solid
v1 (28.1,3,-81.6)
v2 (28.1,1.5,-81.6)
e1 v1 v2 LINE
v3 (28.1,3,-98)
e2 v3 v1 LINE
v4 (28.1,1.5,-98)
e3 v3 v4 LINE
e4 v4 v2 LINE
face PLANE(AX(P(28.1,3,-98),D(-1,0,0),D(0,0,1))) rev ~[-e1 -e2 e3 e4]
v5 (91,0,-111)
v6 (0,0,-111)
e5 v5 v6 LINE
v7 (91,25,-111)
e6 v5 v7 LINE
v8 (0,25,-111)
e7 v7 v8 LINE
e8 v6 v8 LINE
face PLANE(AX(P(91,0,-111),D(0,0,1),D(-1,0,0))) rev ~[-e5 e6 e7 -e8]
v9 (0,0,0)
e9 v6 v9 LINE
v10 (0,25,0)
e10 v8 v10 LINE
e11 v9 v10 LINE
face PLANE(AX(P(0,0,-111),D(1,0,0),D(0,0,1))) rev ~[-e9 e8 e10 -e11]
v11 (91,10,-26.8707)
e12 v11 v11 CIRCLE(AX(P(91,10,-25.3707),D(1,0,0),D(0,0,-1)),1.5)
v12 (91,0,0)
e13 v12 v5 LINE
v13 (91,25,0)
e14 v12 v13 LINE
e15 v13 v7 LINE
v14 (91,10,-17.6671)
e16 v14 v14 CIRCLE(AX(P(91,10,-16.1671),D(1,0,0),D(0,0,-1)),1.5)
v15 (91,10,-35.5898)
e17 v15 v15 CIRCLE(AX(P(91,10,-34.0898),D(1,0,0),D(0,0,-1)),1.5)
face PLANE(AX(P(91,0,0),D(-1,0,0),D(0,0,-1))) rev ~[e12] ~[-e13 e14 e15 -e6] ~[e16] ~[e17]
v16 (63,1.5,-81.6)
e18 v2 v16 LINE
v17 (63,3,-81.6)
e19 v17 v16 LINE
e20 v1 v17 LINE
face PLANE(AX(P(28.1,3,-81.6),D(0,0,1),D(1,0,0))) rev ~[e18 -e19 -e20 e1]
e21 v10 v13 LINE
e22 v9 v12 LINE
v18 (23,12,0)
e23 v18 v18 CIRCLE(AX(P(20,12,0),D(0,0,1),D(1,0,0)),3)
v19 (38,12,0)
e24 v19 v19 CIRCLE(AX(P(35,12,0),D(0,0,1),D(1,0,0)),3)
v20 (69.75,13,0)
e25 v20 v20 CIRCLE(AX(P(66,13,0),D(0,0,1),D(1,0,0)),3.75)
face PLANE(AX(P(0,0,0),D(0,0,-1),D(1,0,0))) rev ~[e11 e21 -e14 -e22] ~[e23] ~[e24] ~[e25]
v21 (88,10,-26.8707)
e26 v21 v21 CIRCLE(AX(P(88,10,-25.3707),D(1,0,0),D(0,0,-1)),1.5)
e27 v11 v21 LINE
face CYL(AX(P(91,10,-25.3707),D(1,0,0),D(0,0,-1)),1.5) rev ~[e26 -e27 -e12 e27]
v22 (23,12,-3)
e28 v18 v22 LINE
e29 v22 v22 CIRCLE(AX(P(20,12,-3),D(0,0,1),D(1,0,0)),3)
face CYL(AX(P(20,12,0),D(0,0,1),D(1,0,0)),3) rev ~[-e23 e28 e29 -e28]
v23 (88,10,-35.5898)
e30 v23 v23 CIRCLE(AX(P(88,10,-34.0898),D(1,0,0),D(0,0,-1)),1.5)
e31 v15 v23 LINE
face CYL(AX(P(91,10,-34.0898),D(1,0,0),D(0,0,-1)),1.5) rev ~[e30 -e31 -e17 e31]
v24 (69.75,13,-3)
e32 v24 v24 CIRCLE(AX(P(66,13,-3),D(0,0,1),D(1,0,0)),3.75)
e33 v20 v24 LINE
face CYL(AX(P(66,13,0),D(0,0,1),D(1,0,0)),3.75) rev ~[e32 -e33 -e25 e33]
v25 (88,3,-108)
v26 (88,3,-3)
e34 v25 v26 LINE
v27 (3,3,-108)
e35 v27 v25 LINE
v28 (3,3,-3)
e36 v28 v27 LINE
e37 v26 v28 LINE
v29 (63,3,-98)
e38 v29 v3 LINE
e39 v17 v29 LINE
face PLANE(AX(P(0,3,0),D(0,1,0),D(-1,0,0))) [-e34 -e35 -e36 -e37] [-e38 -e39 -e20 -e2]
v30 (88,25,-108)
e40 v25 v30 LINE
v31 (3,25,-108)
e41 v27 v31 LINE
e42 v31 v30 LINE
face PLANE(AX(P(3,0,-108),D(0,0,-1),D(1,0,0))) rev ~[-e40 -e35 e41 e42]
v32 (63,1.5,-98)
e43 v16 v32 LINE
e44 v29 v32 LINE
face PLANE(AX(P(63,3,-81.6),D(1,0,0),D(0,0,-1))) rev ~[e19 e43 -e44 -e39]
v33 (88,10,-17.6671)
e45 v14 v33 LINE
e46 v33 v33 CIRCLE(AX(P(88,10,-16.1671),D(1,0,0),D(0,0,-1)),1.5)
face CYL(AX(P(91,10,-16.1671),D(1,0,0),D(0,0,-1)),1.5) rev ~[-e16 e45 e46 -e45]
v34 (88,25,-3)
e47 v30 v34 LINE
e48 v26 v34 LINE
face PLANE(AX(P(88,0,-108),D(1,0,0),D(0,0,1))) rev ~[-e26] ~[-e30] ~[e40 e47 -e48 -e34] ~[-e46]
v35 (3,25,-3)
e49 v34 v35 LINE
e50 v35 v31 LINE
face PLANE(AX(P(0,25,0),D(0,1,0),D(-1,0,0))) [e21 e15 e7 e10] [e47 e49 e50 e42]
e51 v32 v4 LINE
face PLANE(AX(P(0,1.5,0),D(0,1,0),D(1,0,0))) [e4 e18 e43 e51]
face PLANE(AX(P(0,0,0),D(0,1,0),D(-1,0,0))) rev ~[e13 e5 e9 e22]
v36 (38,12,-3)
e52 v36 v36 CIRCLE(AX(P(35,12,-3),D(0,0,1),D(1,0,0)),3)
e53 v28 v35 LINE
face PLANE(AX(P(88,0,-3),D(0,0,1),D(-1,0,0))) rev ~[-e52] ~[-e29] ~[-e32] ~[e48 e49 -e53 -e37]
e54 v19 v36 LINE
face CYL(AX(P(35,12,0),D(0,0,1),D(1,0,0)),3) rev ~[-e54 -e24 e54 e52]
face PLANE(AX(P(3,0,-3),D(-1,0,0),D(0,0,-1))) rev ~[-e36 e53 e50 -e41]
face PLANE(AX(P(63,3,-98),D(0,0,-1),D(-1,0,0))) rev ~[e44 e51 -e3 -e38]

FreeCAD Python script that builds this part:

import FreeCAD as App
import Part
import Sketcher
from FreeCAD import Vector
Q = App.Units.Quantity


def add_polygon(sketch, points):
    """Adds a closed chain of lines whose ends are joined by coincident constraints."""
    first, n = sketch.GeometryCount, len(points)
    for a, b in zip(points, points[1:] + points[:1]):
        sketch.addGeometry(Part.LineSegment(App.Vector(*a, 0), App.Vector(*b, 0)), False)
    for i in range(n):
        sketch.addConstraint(Sketcher.Constraint("Coincident", first + i, 2, first + (i + 1) % n, 1))

doc = App.newDocument("Part")
body = doc.addObject("PartDesign::Body", "Body")

# Sketch on XZ plane
sketch1 = body.newObject("Sketcher::SketchObject", "Sketch")
sketch1.AttachmentSupport = (doc.getObject("XZ_Plane"), [""])
sketch1.MapMode = "FlatFace"
add_polygon(sketch1, [(88, -108), (3, -108), (3, -3), (88, -3)])  # lines 0-3
sketch1.addConstraint([
    Sketcher.Constraint("Horizontal", 0),
    Sketcher.Constraint("Vertical", 1),
    Sketcher.Constraint("Horizontal", 2),
    Sketcher.Constraint("Vertical", 3),
    Sketcher.Constraint("DistanceX", 0, 2, 0, 1, Q("85 mm")),
    Sketcher.Constraint("DistanceY", 1, 1, 1, 2, Q("105 mm")),
    Sketcher.Constraint("DistanceX", -1, 1, 0, 2, Q("3 mm")),
    Sketcher.Constraint("DistanceY", 1, 2, -1, 1, Q("3 mm")),
])
pad1 = body.newObject("PartDesign::Pad", "Pad")
pad1.Profile = sketch1
pad1.Length = 3
pad1.Reversed = True

# Sketch on XZ plane
sketch2 = body.newObject("Sketcher::SketchObject", "Sketch001")
sketch2.AttachmentSupport = (doc.getObject("XZ_Plane"), [""])
sketch2.MapMode = "FlatFace"
add_polygon(sketch2, [(0, -111), (0, 0), (91, 0), (91, -111)])  # lines 0-3
add_polygon(sketch2, [(3, -3), (3, -108), (88, -108), (88, -3)])  # lines 4-7
sketch2.addConstraint([
    Sketcher.Constraint("Vertical", 0),
    Sketcher.Constraint("Horizontal", 1),
    Sketcher.Constraint("Vertical", 2),
    Sketcher.Constraint("Horizontal", 3),
    Sketcher.Constraint("Vertical", 4),
    Sketcher.Constraint("Horizontal", 5),
    Sketcher.Constraint("Vertical", 6),
    Sketcher.Constraint("Horizontal", 7),
    Sketcher.Constraint("Coincident", 0, 2, -1, 1),
    Sketcher.Constraint("DistanceX", 5, 1, 5, 2, Q("85 mm")),
    Sketcher.Constraint("DistanceY", 4, 2, 4, 1, Q("105 mm")),
    Sketcher.Constraint("DistanceX", -1, 1, 4, 2, Q("3 mm")),
    Sketcher.Constraint("DistanceY", 6, 2, -1, 1, Q("3 mm")),
    Sketcher.Constraint("DistanceY", 3, 2, 4, 2, Q("3 mm")),
    Sketcher.Constraint("DistanceX", 5, 2, 2, 2, Q("3 mm")),
])
pad2 = body.newObject("PartDesign::Pad", "Pad001")
pad2.Profile = sketch2
pad2.Length = 25
pad2.Reversed = True

# Sketch on XY plane
sketch3 = body.newObject("Sketcher::SketchObject", "Sketch002")
sketch3.AttachmentSupport = (doc.getObject("XY_Plane"), [""])
sketch3.MapMode = "FlatFace"
sketch3.addGeometry([
    Part.Circle(Vector(20, 12, 0), Vector(0, 0, 1), 3),
    Part.Circle(Vector(66, 13, 0), Vector(0, 0, 1), 3.8),
    Part.Circle(Vector(35, 12, 0), Vector(0, 0, 1), 3),
], False)
sketch3.addConstraint([
    Sketcher.Constraint("Equal", 0, 2),
    Sketcher.Constraint("Horizontal", 0, 3, 2, 3),
    Sketcher.Constraint("Diameter", 0, Q("6 mm")),
    Sketcher.Constraint("Diameter", 1, Q("7.5 mm")),
    Sketcher.Constraint("DistanceX", -1, 1, 0, 3, Q("20 mm")),
    Sketcher.Constraint("DistanceY", -1, 1, 0, 3, Q("12 mm")),
    Sketcher.Constraint("DistanceY", -1, 1, 1, 3, Q("13 mm")),
    Sketcher.Constraint("DistanceX", 0, 3, 2, 3, Q("15 mm")),
    Sketcher.Constraint("DistanceX", -1, 1, 1, 3, Q("66 mm")),
])
pocket1 = body.newObject("PartDesign::Pocket", "Pocket")
pocket1.Profile = sketch3
pocket1.Length = 30

# Sketch on YZ plane
sketch4 = body.newObject("Sketcher::SketchObject", "Sketch003")
sketch4.AttachmentSupport = (doc.getObject("YZ_Plane"), [""])
sketch4.MapMode = "FlatFace"
sketch4.AttachmentOffset = App.Placement(Vector(0, 0, 91), App.Rotation())
sketch4.addGeometry([
    Part.Circle(Vector(10, -16.2, 0), Vector(0, 0, 1), 1.5),
    Part.Circle(Vector(10, -34.1, 0), Vector(0, 0, 1), 1.5),
    Part.Circle(Vector(10, -25.4, 0), Vector(0, 0, 1), 1.5),
], False)
sketch4.addConstraint([
    Sketcher.Constraint("Equal", 0, 1),
    Sketcher.Constraint("Equal", 1, 2),
    Sketcher.Constraint("Vertical", 0, 3, 1, 3),
    Sketcher.Constraint("Vertical", 1, 3, 2, 3),
    Sketcher.Constraint("Diameter", 0, Q("3 mm")),
    Sketcher.Constraint("DistanceX", -1, 1, 0, 3, Q("10 mm")),
    Sketcher.Constraint("DistanceY", 0, 3, -1, 1, Q("16.167 mm")),
    Sketcher.Constraint("DistanceY", 1, 3, 2, 3, Q("8.719 mm")),
    Sketcher.Constraint("DistanceY", 1, 3, -1, 1, Q("34.0898 mm")),
])
pocket2 = body.newObject("PartDesign::Pocket", "Pocket001")
pocket2.Profile = sketch4
pocket2.Length = 10

# Sketch on XZ plane
sketch5 = body.newObject("Sketcher::SketchObject", "Sketch004")
sketch5.AttachmentSupport = (doc.getObject("XZ_Plane"), [""])
sketch5.MapMode = "FlatFace"
sketch5.AttachmentOffset = App.Placement(Vector(0, 0, -3), App.Rotation())
add_polygon(sketch5, [(28, -98), (28, -82), (63, -82), (63, -98)])  # lines 0-3
sketch5.addConstraint([
    Sketcher.Constraint("Vertical", 0),
    Sketcher.Constraint("Horizontal", 1),
    Sketcher.Constraint("Vertical", 2),
    Sketcher.Constraint("Horizontal", 3),
    Sketcher.Constraint("DistanceX", 1, 1, 1, 2, Q("34.9 mm")),
    Sketcher.Constraint("DistanceY", 0, 1, 0, 2, Q("16.4 mm")),
    Sketcher.Constraint("DistanceX", -1, 1, 1, 2, Q("63 mm")),
    Sketcher.Constraint("DistanceY", 2, 2, -1, 1, Q("98 mm")),
])
pocket3 = body.newObject("PartDesign::Pocket", "Pocket002")
pocket3.Profile = sketch5
pocket3.Length = 1.5
pocket3.Reversed = True

doc.recompute()
